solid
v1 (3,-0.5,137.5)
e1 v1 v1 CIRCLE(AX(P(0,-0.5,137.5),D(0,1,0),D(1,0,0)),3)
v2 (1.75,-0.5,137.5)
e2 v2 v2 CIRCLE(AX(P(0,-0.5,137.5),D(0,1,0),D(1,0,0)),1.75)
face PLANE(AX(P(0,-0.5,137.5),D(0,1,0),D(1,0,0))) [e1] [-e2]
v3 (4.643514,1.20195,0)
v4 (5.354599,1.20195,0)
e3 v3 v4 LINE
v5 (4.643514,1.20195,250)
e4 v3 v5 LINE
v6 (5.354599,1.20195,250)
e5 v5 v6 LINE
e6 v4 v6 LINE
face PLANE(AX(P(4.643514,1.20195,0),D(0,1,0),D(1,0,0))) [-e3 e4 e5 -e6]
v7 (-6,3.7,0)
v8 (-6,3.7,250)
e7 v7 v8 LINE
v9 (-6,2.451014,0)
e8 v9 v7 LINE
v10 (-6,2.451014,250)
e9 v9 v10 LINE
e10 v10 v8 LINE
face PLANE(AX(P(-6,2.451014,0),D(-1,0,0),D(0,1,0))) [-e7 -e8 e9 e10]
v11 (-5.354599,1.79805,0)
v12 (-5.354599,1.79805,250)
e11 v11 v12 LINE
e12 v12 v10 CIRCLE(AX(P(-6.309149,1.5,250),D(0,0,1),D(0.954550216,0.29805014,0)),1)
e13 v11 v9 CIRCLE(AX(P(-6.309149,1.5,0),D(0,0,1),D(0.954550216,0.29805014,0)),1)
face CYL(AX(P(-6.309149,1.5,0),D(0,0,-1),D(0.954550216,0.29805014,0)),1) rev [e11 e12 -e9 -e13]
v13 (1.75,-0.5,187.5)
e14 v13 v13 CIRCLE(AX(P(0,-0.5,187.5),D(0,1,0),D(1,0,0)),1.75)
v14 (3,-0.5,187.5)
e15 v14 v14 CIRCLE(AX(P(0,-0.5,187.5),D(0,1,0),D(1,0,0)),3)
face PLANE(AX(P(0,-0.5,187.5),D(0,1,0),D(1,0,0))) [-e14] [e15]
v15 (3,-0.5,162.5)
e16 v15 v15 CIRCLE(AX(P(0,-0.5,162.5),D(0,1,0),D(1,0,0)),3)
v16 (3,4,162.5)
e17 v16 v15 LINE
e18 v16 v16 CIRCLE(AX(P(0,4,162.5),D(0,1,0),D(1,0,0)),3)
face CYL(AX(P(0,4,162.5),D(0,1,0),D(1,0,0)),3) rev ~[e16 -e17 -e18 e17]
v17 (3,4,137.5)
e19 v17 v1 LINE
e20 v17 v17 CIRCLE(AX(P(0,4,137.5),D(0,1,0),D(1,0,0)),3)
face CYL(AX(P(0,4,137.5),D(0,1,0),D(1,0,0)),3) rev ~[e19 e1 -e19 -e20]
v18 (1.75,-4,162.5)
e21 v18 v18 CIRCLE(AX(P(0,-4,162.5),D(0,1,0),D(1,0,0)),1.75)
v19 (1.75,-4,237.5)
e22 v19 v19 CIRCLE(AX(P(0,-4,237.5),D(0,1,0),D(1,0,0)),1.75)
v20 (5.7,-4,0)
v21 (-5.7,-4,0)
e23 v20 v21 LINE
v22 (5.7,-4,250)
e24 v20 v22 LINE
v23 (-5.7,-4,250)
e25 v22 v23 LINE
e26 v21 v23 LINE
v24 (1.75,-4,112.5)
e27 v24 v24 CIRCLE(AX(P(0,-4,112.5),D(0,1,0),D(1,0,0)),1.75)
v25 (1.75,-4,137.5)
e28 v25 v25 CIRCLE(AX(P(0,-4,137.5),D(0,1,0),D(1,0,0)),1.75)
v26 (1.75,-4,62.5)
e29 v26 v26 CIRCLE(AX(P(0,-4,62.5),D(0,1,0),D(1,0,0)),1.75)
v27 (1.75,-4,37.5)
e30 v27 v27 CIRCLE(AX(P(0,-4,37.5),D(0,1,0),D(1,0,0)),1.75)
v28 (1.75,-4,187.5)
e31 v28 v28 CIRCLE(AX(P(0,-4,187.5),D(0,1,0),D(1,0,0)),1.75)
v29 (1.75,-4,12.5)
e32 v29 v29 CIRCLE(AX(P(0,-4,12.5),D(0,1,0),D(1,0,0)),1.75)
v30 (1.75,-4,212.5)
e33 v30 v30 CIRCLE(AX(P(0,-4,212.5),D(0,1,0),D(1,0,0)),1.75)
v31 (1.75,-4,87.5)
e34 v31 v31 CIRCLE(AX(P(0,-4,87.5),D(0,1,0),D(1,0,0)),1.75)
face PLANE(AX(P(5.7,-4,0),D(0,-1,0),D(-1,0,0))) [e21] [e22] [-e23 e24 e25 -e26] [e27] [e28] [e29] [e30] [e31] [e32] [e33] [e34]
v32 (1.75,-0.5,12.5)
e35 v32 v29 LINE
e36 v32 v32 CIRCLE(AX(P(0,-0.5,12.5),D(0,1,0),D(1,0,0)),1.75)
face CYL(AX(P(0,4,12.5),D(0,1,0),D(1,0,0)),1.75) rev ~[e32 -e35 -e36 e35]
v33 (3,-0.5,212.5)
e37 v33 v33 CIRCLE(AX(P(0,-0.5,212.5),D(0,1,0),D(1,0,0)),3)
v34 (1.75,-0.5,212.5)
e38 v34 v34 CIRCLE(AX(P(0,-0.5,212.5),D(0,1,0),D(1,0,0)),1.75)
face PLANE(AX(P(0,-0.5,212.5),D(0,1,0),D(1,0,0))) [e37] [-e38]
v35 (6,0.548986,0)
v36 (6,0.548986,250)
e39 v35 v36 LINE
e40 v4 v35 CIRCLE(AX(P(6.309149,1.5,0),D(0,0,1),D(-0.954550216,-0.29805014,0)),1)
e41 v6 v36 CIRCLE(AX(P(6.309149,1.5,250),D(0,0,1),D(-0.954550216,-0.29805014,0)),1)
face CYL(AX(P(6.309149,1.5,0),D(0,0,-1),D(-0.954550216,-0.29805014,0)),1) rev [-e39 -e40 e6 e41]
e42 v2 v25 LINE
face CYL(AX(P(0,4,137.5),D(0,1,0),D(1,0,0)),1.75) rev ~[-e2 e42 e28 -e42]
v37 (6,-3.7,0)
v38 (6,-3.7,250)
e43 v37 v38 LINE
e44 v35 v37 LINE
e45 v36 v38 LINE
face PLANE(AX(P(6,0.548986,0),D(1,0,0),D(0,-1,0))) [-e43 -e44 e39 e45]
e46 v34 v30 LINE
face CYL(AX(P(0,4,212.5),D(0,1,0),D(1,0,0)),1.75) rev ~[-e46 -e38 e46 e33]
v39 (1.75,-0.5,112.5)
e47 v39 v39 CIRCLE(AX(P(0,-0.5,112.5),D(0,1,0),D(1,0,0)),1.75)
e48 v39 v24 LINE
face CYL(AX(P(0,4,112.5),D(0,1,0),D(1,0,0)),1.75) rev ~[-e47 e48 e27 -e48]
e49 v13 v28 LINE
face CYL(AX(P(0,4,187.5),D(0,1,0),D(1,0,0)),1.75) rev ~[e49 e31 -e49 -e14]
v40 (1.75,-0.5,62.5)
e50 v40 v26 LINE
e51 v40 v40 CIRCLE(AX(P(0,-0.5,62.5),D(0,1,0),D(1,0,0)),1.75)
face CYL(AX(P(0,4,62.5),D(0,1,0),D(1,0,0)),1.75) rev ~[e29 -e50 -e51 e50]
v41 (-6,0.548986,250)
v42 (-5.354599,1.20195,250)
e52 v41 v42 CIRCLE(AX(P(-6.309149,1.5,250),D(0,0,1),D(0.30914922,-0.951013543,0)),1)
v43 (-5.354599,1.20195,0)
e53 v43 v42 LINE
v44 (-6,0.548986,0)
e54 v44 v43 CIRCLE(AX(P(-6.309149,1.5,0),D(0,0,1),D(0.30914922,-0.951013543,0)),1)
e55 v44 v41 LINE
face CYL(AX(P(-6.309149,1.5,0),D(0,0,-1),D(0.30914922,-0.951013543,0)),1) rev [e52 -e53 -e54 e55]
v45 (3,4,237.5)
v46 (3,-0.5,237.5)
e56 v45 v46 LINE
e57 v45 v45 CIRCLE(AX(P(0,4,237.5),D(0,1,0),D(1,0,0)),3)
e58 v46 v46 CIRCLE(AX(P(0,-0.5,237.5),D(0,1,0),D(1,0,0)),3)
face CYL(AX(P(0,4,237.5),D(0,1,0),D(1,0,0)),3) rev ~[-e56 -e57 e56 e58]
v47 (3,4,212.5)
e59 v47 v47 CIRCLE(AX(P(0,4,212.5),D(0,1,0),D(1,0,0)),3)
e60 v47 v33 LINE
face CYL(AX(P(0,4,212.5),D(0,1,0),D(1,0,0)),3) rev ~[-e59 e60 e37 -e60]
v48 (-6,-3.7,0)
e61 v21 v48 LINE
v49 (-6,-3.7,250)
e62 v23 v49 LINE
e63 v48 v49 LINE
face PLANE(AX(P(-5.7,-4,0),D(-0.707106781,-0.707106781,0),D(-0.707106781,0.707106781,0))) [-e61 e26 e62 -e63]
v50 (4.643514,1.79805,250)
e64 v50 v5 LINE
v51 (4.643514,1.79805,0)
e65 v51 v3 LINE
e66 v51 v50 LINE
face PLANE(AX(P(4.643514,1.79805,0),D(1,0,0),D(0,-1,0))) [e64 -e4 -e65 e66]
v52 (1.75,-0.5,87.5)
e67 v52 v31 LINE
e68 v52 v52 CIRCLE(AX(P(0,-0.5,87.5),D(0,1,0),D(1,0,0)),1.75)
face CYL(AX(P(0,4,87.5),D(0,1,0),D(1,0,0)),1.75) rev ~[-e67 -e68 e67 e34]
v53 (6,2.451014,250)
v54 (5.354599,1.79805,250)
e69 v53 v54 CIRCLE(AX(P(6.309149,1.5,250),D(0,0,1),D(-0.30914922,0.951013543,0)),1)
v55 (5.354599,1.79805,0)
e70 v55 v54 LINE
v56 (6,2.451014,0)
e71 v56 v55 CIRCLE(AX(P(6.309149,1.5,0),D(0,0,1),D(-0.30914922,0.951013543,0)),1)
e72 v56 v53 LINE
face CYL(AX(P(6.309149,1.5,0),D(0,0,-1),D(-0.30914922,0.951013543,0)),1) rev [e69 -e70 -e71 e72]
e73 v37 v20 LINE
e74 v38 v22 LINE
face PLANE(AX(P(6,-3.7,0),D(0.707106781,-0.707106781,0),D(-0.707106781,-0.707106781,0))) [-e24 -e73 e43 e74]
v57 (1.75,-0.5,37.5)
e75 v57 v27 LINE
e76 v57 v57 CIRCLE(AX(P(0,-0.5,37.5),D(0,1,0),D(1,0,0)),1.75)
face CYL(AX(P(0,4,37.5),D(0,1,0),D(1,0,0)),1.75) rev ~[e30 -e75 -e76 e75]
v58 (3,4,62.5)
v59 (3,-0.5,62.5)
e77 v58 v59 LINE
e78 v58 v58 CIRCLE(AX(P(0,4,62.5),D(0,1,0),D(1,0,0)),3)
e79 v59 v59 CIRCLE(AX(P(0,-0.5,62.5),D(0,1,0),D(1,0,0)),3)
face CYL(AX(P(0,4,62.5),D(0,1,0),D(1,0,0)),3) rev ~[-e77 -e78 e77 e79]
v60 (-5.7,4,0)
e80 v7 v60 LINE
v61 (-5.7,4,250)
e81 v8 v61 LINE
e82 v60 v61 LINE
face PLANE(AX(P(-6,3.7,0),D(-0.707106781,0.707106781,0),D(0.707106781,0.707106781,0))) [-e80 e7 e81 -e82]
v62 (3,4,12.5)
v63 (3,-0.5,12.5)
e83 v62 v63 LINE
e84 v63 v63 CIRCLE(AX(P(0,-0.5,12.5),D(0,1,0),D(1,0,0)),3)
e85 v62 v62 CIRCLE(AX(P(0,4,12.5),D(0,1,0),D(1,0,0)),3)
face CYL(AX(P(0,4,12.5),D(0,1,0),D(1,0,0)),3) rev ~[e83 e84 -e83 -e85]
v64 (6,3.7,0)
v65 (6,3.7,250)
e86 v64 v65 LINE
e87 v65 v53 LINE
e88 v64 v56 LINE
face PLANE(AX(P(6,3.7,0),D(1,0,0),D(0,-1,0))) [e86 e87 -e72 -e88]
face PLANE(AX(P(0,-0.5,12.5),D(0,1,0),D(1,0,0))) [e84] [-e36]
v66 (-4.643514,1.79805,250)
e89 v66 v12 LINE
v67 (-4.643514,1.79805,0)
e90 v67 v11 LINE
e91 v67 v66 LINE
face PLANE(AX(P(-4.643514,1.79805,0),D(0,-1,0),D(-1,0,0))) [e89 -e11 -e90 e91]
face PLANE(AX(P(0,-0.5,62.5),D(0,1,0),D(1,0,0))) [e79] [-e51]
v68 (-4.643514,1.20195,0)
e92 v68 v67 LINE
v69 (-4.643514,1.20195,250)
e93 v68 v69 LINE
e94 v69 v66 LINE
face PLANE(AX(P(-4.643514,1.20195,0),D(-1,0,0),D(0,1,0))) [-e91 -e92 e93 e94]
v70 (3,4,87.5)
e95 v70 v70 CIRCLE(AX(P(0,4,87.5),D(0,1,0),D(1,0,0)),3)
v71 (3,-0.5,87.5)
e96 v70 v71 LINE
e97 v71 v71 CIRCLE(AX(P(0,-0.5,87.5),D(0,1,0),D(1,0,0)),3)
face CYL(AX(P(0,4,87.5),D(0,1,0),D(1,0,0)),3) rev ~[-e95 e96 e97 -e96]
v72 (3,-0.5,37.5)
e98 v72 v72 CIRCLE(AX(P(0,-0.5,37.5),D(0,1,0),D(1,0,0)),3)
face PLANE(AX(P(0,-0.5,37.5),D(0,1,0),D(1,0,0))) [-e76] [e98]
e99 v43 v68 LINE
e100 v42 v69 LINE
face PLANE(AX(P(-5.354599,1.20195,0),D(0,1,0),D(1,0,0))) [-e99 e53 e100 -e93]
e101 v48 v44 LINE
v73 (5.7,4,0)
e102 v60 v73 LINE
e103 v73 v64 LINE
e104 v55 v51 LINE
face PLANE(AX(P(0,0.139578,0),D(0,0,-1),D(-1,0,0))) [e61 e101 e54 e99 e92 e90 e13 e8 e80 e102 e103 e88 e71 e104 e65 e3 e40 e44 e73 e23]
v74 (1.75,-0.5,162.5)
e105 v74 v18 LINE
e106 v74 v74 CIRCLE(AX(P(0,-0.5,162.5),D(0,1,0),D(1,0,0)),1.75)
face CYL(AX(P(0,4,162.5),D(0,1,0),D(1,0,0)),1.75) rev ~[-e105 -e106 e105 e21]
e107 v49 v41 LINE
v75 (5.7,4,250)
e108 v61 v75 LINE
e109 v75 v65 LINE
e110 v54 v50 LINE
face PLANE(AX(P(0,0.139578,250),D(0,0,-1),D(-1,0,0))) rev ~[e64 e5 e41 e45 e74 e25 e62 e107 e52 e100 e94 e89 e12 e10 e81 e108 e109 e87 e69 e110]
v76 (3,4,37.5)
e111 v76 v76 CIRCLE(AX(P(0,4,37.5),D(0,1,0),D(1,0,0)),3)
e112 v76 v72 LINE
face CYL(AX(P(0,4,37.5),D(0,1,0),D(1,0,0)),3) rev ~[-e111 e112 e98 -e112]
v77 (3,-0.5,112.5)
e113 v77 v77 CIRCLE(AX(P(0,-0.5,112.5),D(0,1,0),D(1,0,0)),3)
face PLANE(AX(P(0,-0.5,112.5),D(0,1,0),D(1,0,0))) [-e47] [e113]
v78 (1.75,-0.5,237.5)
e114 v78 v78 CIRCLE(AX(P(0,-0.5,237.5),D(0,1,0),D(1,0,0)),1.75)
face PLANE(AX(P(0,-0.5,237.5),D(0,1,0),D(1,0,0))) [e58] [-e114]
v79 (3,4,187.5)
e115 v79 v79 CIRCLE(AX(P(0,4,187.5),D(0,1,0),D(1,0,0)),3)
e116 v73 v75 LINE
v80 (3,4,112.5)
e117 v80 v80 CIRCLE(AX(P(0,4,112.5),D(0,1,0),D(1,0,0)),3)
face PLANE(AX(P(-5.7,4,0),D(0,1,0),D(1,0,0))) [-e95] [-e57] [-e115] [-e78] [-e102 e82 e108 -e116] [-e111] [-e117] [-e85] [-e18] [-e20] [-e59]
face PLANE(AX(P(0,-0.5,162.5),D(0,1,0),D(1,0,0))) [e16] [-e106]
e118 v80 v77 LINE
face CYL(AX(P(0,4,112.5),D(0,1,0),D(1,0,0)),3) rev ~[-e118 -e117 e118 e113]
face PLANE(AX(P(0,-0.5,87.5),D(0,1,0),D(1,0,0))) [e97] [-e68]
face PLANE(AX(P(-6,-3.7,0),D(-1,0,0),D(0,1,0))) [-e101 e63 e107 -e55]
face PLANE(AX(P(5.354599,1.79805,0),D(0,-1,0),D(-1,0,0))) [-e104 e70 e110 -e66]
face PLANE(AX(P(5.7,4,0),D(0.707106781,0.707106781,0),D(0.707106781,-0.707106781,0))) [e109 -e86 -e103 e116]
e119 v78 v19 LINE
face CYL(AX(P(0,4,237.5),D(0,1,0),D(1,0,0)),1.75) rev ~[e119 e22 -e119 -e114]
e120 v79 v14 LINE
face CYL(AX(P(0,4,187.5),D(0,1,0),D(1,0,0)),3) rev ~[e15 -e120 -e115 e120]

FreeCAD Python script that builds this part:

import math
import FreeCAD as App
import Part
import Sketcher

V = App.Vector
Q = App.Units.Quantity

doc = App.newDocument("Part")
body = doc.addObject("PartDesign::Body", "Body")

# Sketch on XY plane
sketch1 = body.newObject("Sketcher::SketchObject", "Sketch")
sketch1.AttachmentSupport = (doc.getObject("XY_Plane"), [""])
sketch1.MapMode = "FlatFace"
sketch1.addGeometry([
    Part.LineSegment(V(-5.7, 4, 0), V(-6, 3.7, 0)),  # 0
    Part.LineSegment(V(-6, 3.7, 0), V(-6, 2.45, 0)),  # 1
    Part.ArcOfCircle(Part.Circle(V(-6.31, 1.5, 0), V(0, 0, 1), 1), math.radians(17), math.radians(72)),  # 2
    Part.LineSegment(V(-5.35, 1.8, 0), V(-4.64, 1.8, 0)),  # 3
    Part.LineSegment(V(-4.64, 1.8, 0), V(-4.64, 1.2, 0)),  # 4
    Part.LineSegment(V(-4.64, 1.2, 0), V(-5.35, 1.2, 0)),  # 5
    Part.ArcOfCircle(Part.Circle(V(-6.31, 1.5, 0), V(0, 0, 1), 1), math.radians(-72), math.radians(-17)),  # 6
    Part.LineSegment(V(-6, 0.55, 0), V(-6, -3.7, 0)),  # 7
    Part.LineSegment(V(-6, -3.7, 0), V(-5.7, -4, 0)),  # 8
    Part.LineSegment(V(-5.7, -4, 0), V(5.7, -4, 0)),  # 9
    Part.LineSegment(V(5.7, -4, 0), V(6, -3.7, 0)),  # 10
    Part.LineSegment(V(6, -3.7, 0), V(6, 0.55, 0)),  # 11
    Part.ArcOfCircle(Part.Circle(V(6.31, 1.5, 0), V(0, 0, 1), 1), math.radians(-163), math.radians(-108)),  # 12
    Part.LineSegment(V(5.35, 1.2, 0), V(4.64, 1.2, 0)),  # 13
    Part.LineSegment(V(4.64, 1.2, 0), V(4.64, 1.8, 0)),  # 14
    Part.LineSegment(V(4.64, 1.8, 0), V(5.35, 1.8, 0)),  # 15
    Part.ArcOfCircle(Part.Circle(V(6.31, 1.5, 0), V(0, 0, 1), 1), math.radians(108), math.radians(163)),  # 16
    Part.LineSegment(V(6, 2.45, 0), V(6, 3.7, 0)),  # 17
    Part.LineSegment(V(6, 3.7, 0), V(5.7, 4, 0)),  # 18
    Part.LineSegment(V(5.7, 4, 0), V(-5.7, 4, 0)),  # 19
], False)
sketch1.addConstraint([
    Sketcher.Constraint("Coincident", 0, 2, 1, 1),
    Sketcher.Constraint("Coincident", 1, 2, 2, 2),
    Sketcher.Constraint("Coincident", 2, 1, 3, 1),
    Sketcher.Constraint("Coincident", 3, 2, 4, 1),
    Sketcher.Constraint("Coincident", 4, 2, 5, 1),
    Sketcher.Constraint("Coincident", 5, 2, 6, 2),
    Sketcher.Constraint("Coincident", 6, 1, 7, 1),
    Sketcher.Constraint("Coincident", 7, 2, 8, 1),
    Sketcher.Constraint("Coincident", 8, 2, 9, 1),
    Sketcher.Constraint("Coincident", 9, 2, 10, 1),
    Sketcher.Constraint("Coincident", 10, 2, 11, 1),
    Sketcher.Constraint("Coincident", 11, 2, 12, 2),
    Sketcher.Constraint("Coincident", 12, 1, 13, 1),
    Sketcher.Constraint("Coincident", 13, 2, 14, 1),
    Sketcher.Constraint("Coincident", 14, 2, 15, 1),
    Sketcher.Constraint("Coincident", 15, 2, 16, 2),
    Sketcher.Constraint("Coincident", 16, 1, 17, 1),
    Sketcher.Constraint("Coincident", 17, 2, 18, 1),
    Sketcher.Constraint("Coincident", 18, 2, 19, 1),
    Sketcher.Constraint("Coincident", 19, 2, 0, 1),
    Sketcher.Constraint("Vertical", 1),
    Sketcher.Constraint("Horizontal", 3),
    Sketcher.Constraint("Vertical", 4),
    Sketcher.Constraint("Horizontal", 5),
    Sketcher.Constraint("Vertical", 7),
    Sketcher.Constraint("Horizontal", 9),
    Sketcher.Constraint("Vertical", 11),
    Sketcher.Constraint("Horizontal", 13),
    Sketcher.Constraint("Vertical", 14),
    Sketcher.Constraint("Horizontal", 15),
    Sketcher.Constraint("Vertical", 17),
    Sketcher.Constraint("Horizontal", 19),
    Sketcher.Constraint("Coincident", 6, 3, 2, 3),
    Sketcher.Constraint("Coincident", 16, 3, 12, 3),
    Sketcher.Constraint("Equal", 2, 6),
    Sketcher.Constraint("Equal", 6, 12),
    Sketcher.Constraint("Equal", 12, 16),
    Sketcher.Constraint("Symmetric", 0, 2, 10, 2, -1, 1),
    Sketcher.Constraint("Symmetric", 7, 2, 17, 2, -1, 1),
    Sketcher.Constraint("Symmetric", 8, 2, 18, 2, -1, 1),
    Sketcher.Constraint("Symmetric", 2, 3, 12, 3, -2),
    Sketcher.Constraint("Symmetric", 7, 2, 10, 2, -2),
    Sketcher.Constraint("Symmetric", 4, 2, 13, 2, -2),
    Sketcher.Constraint("Perpendicular", 0, 8),
    Sketcher.Constraint("Perpendicular", 8, 10),
    Sketcher.Constraint("Horizontal", 3, 2, 14, 2),
    Sketcher.Constraint("Vertical", 2, 1, 5, 2),
    Sketcher.Constraint("Vertical", 9, 2, 18, 2),
    Sketcher.Constraint("Radius", 2, Q("1 mm")),
    Sketcher.Constraint("DistanceX", 9, 1, 9, 2, Q("11.4 mm")),
    Sketcher.Constraint("DistanceX", 0, 2, -1, 1, Q("6 mm")),
    Sketcher.Constraint("DistanceY", 8, 2, -1, 1, Q("4 mm")),
    Sketcher.Constraint("DistanceY", -1, 1, 2, 3, Q("1.5 mm")),
    Sketcher.Constraint("DistanceY", 4, 2, 4, 1, Q("0.5961 mm")),
    Sketcher.Constraint("DistanceX", 2, 1, -1, 1, Q("5.354599 mm")),
    Sketcher.Constraint("DistanceX", 3, 1, 3, 2, Q("0.711085 mm")),
])
pad1 = body.newObject("PartDesign::Pad", "Pad")
pad1.Profile = sketch1
pad1.Length = 250

# Sketch on XZ plane
sketch2 = body.newObject("Sketcher::SketchObject", "Sketch001")
sketch2.AttachmentSupport = (doc.getObject("XZ_Plane"), [""])
sketch2.MapMode = "FlatFace"
sketch2.AttachmentOffset = App.Placement(V(0, 0, -4), App.Rotation())
sketch2.addGeometry([
    Part.Circle(V(0, 12.5, 0), V(0, 0, 1), 3),
    Part.Circle(V(0, 12.5, 0), V(0, 0, 1), 1.8),
], False)
sketch2.addConstraint([
    Sketcher.Constraint("Coincident", 1, 3, 0, 3),
    Sketcher.Constraint("PointOnObject", 0, 3, -2),
    Sketcher.Constraint("Diameter", 0, Q("6 mm")),
    Sketcher.Constraint("Diameter", 1, Q("3.5 mm")),
    Sketcher.Constraint("DistanceY", -1, 1, 0, 3, Q("12.5 mm")),
])
pocket1 = body.newObject("PartDesign::Pocket", "Pocket")
pocket1.Profile = sketch2
pocket1.Length = 4.5
pocket1.Reversed = True

# Sketch on XZ plane
sketch3 = body.newObject("Sketcher::SketchObject", "Sketch002")
sketch3.AttachmentSupport = (doc.getObject("XZ_Plane"), [""])
sketch3.MapMode = "FlatFace"
sketch3.AttachmentOffset = App.Placement(V(0, 0, -4), App.Rotation())
sketch3.addGeometry(Part.Circle(V(0, 12.5, 0), V(0, 0, 1), 1.8), False)
sketch3.addConstraint([
    Sketcher.Constraint("PointOnObject", 0, 3, -2),
    Sketcher.Constraint("Diameter", 0, Q("3.5 mm")),
    Sketcher.Constraint("DistanceY", -1, 1, 0, 3, Q("12.5 mm")),
])
pocket2 = body.newObject("PartDesign::Pocket", "Pocket001")
pocket2.Profile = sketch3
pocket2.Type = "ThroughAll"
pocket2.Reversed = True
doc.recompute()

linearpattern = body.newObject("PartDesign::LinearPattern", "LinearPattern")
linearpattern.Originals = [pocket1, pocket2]
linearpattern.Direction = (doc.getObject("Z_Axis"), [""])
linearpattern.Mode = "offset"
linearpattern.Offset = 25
linearpattern.Occurrences = 10
body.Tip = linearpattern

doc.recompute()
